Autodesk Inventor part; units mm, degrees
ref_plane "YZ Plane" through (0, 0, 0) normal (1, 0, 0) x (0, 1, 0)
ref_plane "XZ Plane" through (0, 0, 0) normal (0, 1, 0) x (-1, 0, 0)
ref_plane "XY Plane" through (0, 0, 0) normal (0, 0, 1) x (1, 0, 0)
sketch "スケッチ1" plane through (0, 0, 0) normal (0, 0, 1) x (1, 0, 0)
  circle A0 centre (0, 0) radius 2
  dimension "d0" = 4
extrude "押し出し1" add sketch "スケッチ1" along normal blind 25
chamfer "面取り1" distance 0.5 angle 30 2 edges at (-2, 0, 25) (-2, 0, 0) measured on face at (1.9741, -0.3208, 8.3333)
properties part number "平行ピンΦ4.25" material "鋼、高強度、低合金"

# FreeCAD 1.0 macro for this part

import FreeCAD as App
import Part
import Sketcher
from FreeCAD import Vector
Q = App.Units.Quantity


def edges_at(feature, points):
    """Names of the edges that pass closest to the given points."""
    edges = feature.Shape.Edges
    near = lambda p: min(range(len(edges)), key=lambda i: edges[i].distToShape(Part.Vertex(*p))[0])
    return sorted({f"Edge{near(p) + 1}" for p in points})

doc = App.newDocument("Part")
body = doc.addObject("PartDesign::Body", "Body")

# Sketch on XY plane
sketch1 = doc.addObject("Sketcher::SketchObject", "Sketch")
body.addObject(sketch1)
sketch1.AttachmentSupport = (doc.XY_Plane, [""])
sketch1.MapMode = "FlatFace"
sketch1.addGeometry(Part.Circle(Vector(0, 0, 0), Vector(0, 0, 1), 2), False)
sketch1.addConstraint(Sketcher.Constraint("Coincident", 0, 3, -1, 1))
sketch1.addConstraint(Sketcher.Constraint("Diameter", 0, Q("4 mm")))
pad1 = doc.addObject("PartDesign::Pad", "Pad")
body.addObject(pad1)
pad1.Profile = sketch1
pad1.Length = 25
doc.recompute()

chamfer = doc.addObject("PartDesign::Chamfer", "Chamfer")
body.addObject(chamfer)
chamfer.Base = (pad1, edges_at(pad1, [(-2, 0, 25), (-2, 0, 0)]))
chamfer.ChamferType = "Distance and Angle"
chamfer.Size = 0.5
chamfer.Angle = 30

doc.recompute()
